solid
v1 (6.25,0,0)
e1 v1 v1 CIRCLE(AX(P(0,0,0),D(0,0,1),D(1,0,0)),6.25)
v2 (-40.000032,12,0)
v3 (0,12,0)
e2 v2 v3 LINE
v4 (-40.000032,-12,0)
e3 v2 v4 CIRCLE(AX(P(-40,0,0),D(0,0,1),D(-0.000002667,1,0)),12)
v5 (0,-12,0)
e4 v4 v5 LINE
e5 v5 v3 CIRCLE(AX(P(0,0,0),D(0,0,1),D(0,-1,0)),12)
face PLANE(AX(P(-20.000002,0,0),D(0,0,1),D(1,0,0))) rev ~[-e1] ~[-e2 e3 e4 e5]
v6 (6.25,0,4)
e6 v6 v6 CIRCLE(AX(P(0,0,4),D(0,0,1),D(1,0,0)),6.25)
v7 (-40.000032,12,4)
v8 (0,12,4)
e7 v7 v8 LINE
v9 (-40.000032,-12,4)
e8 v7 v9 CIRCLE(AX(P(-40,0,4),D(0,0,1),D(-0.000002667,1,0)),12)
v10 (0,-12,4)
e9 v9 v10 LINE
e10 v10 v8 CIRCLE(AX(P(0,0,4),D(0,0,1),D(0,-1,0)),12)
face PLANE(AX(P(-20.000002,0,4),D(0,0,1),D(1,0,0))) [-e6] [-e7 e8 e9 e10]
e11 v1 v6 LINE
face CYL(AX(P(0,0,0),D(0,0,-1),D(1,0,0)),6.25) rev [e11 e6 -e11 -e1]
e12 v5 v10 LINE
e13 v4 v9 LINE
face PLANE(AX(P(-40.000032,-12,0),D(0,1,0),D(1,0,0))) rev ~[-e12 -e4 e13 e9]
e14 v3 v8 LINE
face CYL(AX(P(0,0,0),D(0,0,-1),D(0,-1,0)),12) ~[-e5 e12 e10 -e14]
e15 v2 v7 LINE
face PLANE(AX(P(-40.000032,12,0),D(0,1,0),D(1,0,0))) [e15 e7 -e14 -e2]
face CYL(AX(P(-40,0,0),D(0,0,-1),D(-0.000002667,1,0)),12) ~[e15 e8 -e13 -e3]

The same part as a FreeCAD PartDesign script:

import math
import FreeCAD as App
import Part
import Sketcher

doc = App.newDocument("Part")
params = doc.addObject("Spreadsheet::Sheet", "Params")
for row, (alias, value) in enumerate([
    ("sketch1_radius", "12 mm"),
    ("sketch1_diameter", "12.5 mm"),
    ("pad1_length", "4 mm"),
], start=1):
    params.set(f"A{row}", alias)
    params.set(f"B{row}", "=" + value)
    params.setAlias(f"B{row}", alias)

body = doc.addObject("PartDesign::Body", "Body")

# Sketch on XY plane
sketch1 = doc.addObject("Sketcher::SketchObject", "Sketch")
body.addObject(sketch1)
sketch1.AttachmentSupport = (doc.XY_Plane, [""])
sketch1.MapMode = "FlatFace"
sketch1.addGeometry([
    Part.ArcOfCircle(Part.Circle(App.Vector(0, 0, 0), App.Vector(0, 0, 1), 12), math.radians(-90), math.radians(90)),  # 0
    Part.LineSegment(App.Vector(0, 12, 0), App.Vector(-40, 12, 0)),  # 1
    Part.ArcOfCircle(Part.Circle(App.Vector(-40, 0, 0), App.Vector(0, 0, 1), 12), math.radians(90), math.radians(270)),  # 2
    Part.LineSegment(App.Vector(-40, -12, 0), App.Vector(0, -12, 0)),  # 3
    Part.Circle(App.Vector(0, 0, 0), App.Vector(0, 0, 1), 6),  # 4
], False)
sketch1.addConstraint([
    Sketcher.Constraint("Tangent", 0, 2, 1, 1),
    Sketcher.Constraint("Coincident", 1, 2, 2, 1),
    Sketcher.Constraint("Coincident", 2, 2, 3, 1),
    Sketcher.Constraint("Tangent", 3, 2, 0, 1),
    Sketcher.Constraint("Horizontal", 1),
    Sketcher.Constraint("Horizontal", 3),
    Sketcher.Constraint("Coincident", 0, 3, -1, 1),
    Sketcher.Constraint("Coincident", 4, 3, -1, 1),
    Sketcher.Constraint("Vertical", 1, 2, 2, 2),
    Sketcher.Constraint("Radius", 0, 12.0),
    Sketcher.Constraint("Diameter", 4, 12.5),
    Sketcher.Constraint("DistanceX", 2, 3, -1, 1, 40.0),
    Sketcher.Constraint("DistanceX", 1, 2, 1, 1, 40.000032),
])
sketch1.setExpression("Constraints[9]", "Params.sketch1_radius")
sketch1.setExpression("Constraints[10]", "Params.sketch1_diameter")
pad1 = doc.addObject("PartDesign::Pad", "Pad")
body.addObject(pad1)
pad1.Profile = sketch1
pad1.setExpression("Length", "Params.pad1_length")

doc.recompute()
